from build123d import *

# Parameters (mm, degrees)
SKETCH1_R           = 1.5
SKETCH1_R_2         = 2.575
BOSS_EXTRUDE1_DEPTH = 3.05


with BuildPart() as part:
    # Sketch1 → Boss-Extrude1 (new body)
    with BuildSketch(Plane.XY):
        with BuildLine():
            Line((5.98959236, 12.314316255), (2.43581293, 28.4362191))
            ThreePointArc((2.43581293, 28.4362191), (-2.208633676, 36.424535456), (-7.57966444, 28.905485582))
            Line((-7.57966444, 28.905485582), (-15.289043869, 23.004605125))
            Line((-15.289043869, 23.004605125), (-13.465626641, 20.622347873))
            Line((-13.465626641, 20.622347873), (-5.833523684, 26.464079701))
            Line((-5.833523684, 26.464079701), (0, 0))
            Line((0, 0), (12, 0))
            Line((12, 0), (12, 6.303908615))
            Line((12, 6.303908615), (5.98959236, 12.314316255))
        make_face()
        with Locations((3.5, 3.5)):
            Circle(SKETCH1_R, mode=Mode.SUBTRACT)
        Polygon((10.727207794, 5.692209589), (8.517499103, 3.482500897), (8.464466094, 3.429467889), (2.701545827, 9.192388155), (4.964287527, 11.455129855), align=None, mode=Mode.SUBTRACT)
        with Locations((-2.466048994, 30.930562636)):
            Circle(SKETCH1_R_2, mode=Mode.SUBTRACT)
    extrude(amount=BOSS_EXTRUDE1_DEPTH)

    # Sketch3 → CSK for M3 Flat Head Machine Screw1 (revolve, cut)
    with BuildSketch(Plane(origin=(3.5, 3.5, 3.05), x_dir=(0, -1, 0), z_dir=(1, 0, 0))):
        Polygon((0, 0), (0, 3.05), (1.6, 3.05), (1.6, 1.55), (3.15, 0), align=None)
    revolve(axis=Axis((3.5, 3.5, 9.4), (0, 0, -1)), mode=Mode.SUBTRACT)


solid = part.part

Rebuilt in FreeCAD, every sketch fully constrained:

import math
import FreeCAD as App
import Part
import Sketcher

V = App.Vector
Q = App.Units.Quantity

doc = App.newDocument("Part")
body = doc.addObject("PartDesign::Body", "Body")

# Sketch on XY plane
sketch1 = body.newObject("Sketcher::SketchObject", "Sketch")
sketch1.AttachmentSupport = (doc.getObject("XY_Plane"), [""])
sketch1.MapMode = "FlatFace"
sketch1.addGeometry([
    Part.LineSegment(V(5.99, 12.31, 0), V(2.44, 28.44, 0)),  # 0
    Part.ArcOfCircle(Part.Circle(V(-2.47, 30.93, 0), V(0, 0, 1), 5.5), math.radians(-27), math.radians(202)),  # 1
    Part.LineSegment(V(-7.58, 28.91, 0), V(-15.29, 23, 0)),  # 2
    Part.LineSegment(V(-15.29, 23, 0), V(-13.47, 20.62, 0)),  # 3
    Part.LineSegment(V(-13.47, 20.62, 0), V(-5.83, 26.46, 0)),  # 4
    Part.LineSegment(V(-5.83, 26.46, 0), V(0, 0, 0)),  # 5
    Part.LineSegment(V(0, 0, 0), V(12, 0, 0)),  # 6
    Part.LineSegment(V(12, 0, 0), V(12, 6.3, 0)),  # 7
    Part.LineSegment(V(12, 6.3, 0), V(5.99, 12.31, 0)),  # 8
    Part.Circle(V(3.5, 3.5, 0), V(0, 0, 1), 1.5),  # 9
    Part.LineSegment(V(4.96, 11.46, 0), V(10.73, 5.69, 0)),  # 10
    Part.LineSegment(V(10.73, 5.69, 0), V(8.52, 3.48, 0)),  # 11
    Part.LineSegment(V(8.52, 3.48, 0), V(8.46, 3.43, 0)),  # 12
    Part.LineSegment(V(8.46, 3.43, 0), V(2.7, 9.19, 0)),  # 13
    Part.LineSegment(V(2.7, 9.19, 0), V(4.96, 11.46, 0)),  # 14
    Part.Circle(V(-2.47, 30.93, 0), V(0, 0, 1), 2.58),  # 15
], False)
sketch1.addConstraint([
    Sketcher.Constraint("Coincident", 0, 2, 1, 1),
    Sketcher.Constraint("Coincident", 1, 2, 2, 1),
    Sketcher.Constraint("Coincident", 2, 2, 3, 1),
    Sketcher.Constraint("Coincident", 3, 2, 4, 1),
    Sketcher.Constraint("Coincident", 4, 2, 5, 1),
    Sketcher.Constraint("Coincident", 5, 2, 6, 1),
    Sketcher.Constraint("Coincident", 6, 2, 7, 1),
    Sketcher.Constraint("Coincident", 7, 2, 8, 1),
    Sketcher.Constraint("Coincident", 8, 2, 0, 1),
    Sketcher.Constraint("Coincident", 10, 2, 11, 1),
    Sketcher.Constraint("Coincident", 11, 2, 12, 1),
    Sketcher.Constraint("Coincident", 12, 2, 13, 1),
    Sketcher.Constraint("Coincident", 13, 2, 14, 1),
    Sketcher.Constraint("Coincident", 14, 2, 10, 1),
    Sketcher.Constraint("Horizontal", 6),
    Sketcher.Constraint("Vertical", 7),
    Sketcher.Constraint("Coincident", 5, 2, -1, 1),
    Sketcher.Constraint("Coincident", 15, 3, 1, 3),
    Sketcher.Constraint("Perpendicular", 2, 3),
    Sketcher.Constraint("Perpendicular", 3, 4),
    Sketcher.Constraint("Parallel", 0, 5),
    Sketcher.Constraint("Parallel", 8, 10),
    Sketcher.Constraint("Perpendicular", 10, 11),
    Sketcher.Constraint("Parallel", 11, 12),
    Sketcher.Constraint("Perpendicular", 12, 13),
    Sketcher.Constraint("Perpendicular", 13, 14),
    Sketcher.Constraint("Diameter", 9, Q("3 mm")),
    Sketcher.Constraint("Radius", 1, Q("5.5 mm")),
    Sketcher.Constraint("Diameter", 15, Q("5.15 mm")),
    Sketcher.Constraint("DistanceX", 6, 1, 6, 2, Q("12 mm")),
    Sketcher.Constraint("Angle", 8, Q("135 deg")),
    Sketcher.Constraint("Distance", 3, Q("3 mm")),
    Sketcher.Constraint("Distance", 8, Q("8.5 mm")),
    Sketcher.Constraint("Distance", 14, Q("3.2 mm")),
    Sketcher.Constraint("DistanceX", -1, 1, 9, 3, Q("3.5 mm")),
    Sketcher.Constraint("DistanceY", -1, 1, 9, 3, Q("3.5 mm")),
    Sketcher.Constraint("Distance", 10, Q("8.15 mm")),
    Sketcher.Constraint("Distance", 11, Q("3.125 mm")),
    Sketcher.Constraint("Distance", 5, Q("27.099401 mm")),
    Sketcher.Constraint("DistanceY", 7, 1, 7, 2, Q("6.303909 mm")),
    Sketcher.Constraint("DistanceX", -1, 1, 11, 2, Q("8.517499 mm")),
    Sketcher.Constraint("DistanceY", -1, 1, 11, 2, Q("3.482501 mm")),
    Sketcher.Constraint("Distance", 0, Q("16.50894 mm")),
    Sketcher.Constraint("DistanceX", 1, 3, -1, 1, Q("2.466049 mm")),
    Sketcher.Constraint("DistanceY", -1, 1, 0, 2, Q("28.436219 mm")),
    Sketcher.Constraint("DistanceX", 2, 2, 1, 2, Q("7.709379 mm")),
    Sketcher.Constraint("DistanceY", 2, 2, 1, 2, Q("5.90088 mm")),
])
pad1 = body.newObject("PartDesign::Pad", "Pad")
pad1.Profile = sketch1
pad1.Length = 3.05

# Sketch on YZ plane
sketch2 = body.newObject("Sketcher::SketchObject", "Sketch001")
sketch2.AttachmentSupport = (doc.getObject("YZ_Plane"), [""])
sketch2.MapMode = "FlatFace"
sketch2.AttachmentOffset = App.Placement(V(0, 0, 3.5), App.Rotation())
sketch2.addGeometry([
    Part.LineSegment(V(3.5, 0, 0), V(3.5, 3, 0)),  # 0
    Part.LineSegment(V(3.5, 3, 0), V(0.3, 3, 0)),  # 1
    Part.LineSegment(V(0.3, 3, 0), V(1.9, 1.5, 0)),  # 2
    Part.LineSegment(V(1.9, 1.5, 0), V(1.9, 0, 0)),  # 3
    Part.LineSegment(V(1.9, 0, 0), V(3.5, 0, 0)),  # 4
], False)
sketch2.addGeometry(Part.LineSegment(V(3.5, 3, 0), V(3.5, 0, 0)), True)  # axis
sketch2.addConstraint([
    Sketcher.Constraint("Coincident", 0, 2, 1, 1),
    Sketcher.Constraint("Coincident", 1, 2, 2, 1),
    Sketcher.Constraint("Coincident", 2, 2, 3, 1),
    Sketcher.Constraint("Coincident", 3, 2, 4, 1),
    Sketcher.Constraint("Coincident", 4, 2, 0, 1),
    Sketcher.Constraint("Vertical", 0),
    Sketcher.Constraint("Horizontal", 1),
    Sketcher.Constraint("Vertical", 3),
    Sketcher.Constraint("Horizontal", 4),
    Sketcher.Constraint("Vertical", 5),
    Sketcher.Constraint("Coincident", 5, 1, 0, 2),
    Sketcher.Constraint("PointOnObject", 3, 2, -1),
    Sketcher.Constraint("PointOnObject", 5, 2, -1),
    Sketcher.Constraint("Angle", 2, Q("-45 deg")),
    Sketcher.Constraint("DistanceX", 4, 1, 4, 2, Q("1.6 mm")),
    Sketcher.Constraint("DistanceY", 3, 2, 3, 1, Q("1.5 mm")),
    Sketcher.Constraint("DistanceX", 1, 2, 1, 1, Q("3.15 mm")),
    Sketcher.Constraint("DistanceX", -1, 1, 0, 2, Q("3.5 mm")),
])
groove = body.newObject("PartDesign::Groove", "Groove")
groove.Profile = sketch2
groove.ReferenceAxis = (sketch2, ["Axis0"])
groove.Angle = 360

doc.recompute()
